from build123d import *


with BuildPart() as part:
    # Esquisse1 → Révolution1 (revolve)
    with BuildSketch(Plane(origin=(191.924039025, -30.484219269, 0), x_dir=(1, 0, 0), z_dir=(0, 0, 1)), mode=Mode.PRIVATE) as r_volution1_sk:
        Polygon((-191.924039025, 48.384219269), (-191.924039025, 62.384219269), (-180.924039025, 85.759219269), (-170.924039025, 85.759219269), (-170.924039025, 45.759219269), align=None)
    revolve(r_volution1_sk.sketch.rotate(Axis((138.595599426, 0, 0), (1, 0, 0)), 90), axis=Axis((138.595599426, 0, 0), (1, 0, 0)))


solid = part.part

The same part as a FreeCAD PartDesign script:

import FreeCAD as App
import Part
import Sketcher

doc = App.newDocument("Part")
body = doc.addObject("PartDesign::Body", "Body")

# Sketch on XY plane
sketch1 = body.newObject("Sketcher::SketchObject", "Sketch")
sketch1.AttachmentSupport = (doc.getObject("XY_Plane"), [""])
sketch1.MapMode = "FlatFace"
sketch1.addGeometry([
    Part.LineSegment(App.Vector(0, 31.9, 0), App.Vector(0, 17.9, 0)),  # 0
    Part.LineSegment(App.Vector(0, 17.9, 0), App.Vector(21, 15.275, 0)),  # 1
    Part.LineSegment(App.Vector(21, 15.275, 0), App.Vector(21, 55.275, 0)),  # 2
    Part.LineSegment(App.Vector(21, 55.275, 0), App.Vector(11, 55.275, 0)),  # 3
    Part.LineSegment(App.Vector(11, 55.275, 0), App.Vector(0, 31.9, 0)),  # 4
], False)
sketch1.addConstraint([
    Sketcher.Constraint("Coincident", 0, 2, 1, 1),
    Sketcher.Constraint("Coincident", 1, 2, 2, 1),
    Sketcher.Constraint("Coincident", 2, 2, 3, 1),
    Sketcher.Constraint("Coincident", 3, 2, 4, 1),
    Sketcher.Constraint("Coincident", 4, 2, 0, 1),
    Sketcher.Constraint("Vertical", 0),
    Sketcher.Constraint("Vertical", 2),
    Sketcher.Constraint("Horizontal", 3),
    Sketcher.Constraint("PointOnObject", 0, 2, -2),
    Sketcher.Constraint("DistanceX", 3, 2, 3, 1, 10.0),
    Sketcher.Constraint("DistanceY", 0, 2, 0, 1, 14.0),
    Sketcher.Constraint("DistanceY", 2, 1, 2, 2, 40.0),
    Sketcher.Constraint("DistanceX", -1, 1, 1, 2, 21.0),
    Sketcher.Constraint("DistanceY", -1, 1, 0, 2, 17.9),
    Sketcher.Constraint("DistanceY", -1, 1, 1, 2, 15.275),
])
revolution = body.newObject("PartDesign::Revolution", "Revolution")
revolution.Profile = sketch1
revolution.ReferenceAxis = (sketch1, ["H_Axis"])
revolution.Angle = 360

doc.recompute()
